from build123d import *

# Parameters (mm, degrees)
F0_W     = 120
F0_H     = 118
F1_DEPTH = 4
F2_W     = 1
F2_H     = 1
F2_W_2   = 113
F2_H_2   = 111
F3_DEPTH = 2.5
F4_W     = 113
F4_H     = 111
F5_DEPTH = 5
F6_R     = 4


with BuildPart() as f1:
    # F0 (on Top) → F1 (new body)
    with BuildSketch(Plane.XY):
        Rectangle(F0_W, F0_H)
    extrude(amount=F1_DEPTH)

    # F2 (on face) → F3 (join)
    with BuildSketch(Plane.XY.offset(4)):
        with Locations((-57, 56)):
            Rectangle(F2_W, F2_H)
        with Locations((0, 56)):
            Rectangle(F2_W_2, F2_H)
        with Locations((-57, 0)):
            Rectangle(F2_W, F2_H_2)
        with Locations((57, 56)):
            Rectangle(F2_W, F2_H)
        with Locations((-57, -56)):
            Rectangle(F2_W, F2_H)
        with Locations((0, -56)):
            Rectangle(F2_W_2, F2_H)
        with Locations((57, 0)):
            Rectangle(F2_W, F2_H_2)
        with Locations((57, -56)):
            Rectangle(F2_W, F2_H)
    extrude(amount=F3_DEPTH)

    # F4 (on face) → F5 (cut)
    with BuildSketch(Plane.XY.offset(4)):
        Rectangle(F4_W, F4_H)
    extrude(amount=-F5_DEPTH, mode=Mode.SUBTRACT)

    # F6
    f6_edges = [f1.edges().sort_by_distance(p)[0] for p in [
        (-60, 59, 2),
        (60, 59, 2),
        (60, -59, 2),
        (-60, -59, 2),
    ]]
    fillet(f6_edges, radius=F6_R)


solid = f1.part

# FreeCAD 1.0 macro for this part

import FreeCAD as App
import Part
import Sketcher
from FreeCAD import Vector
Q = App.Units.Quantity


def edges_at(feature, points):
    """Names of the edges that pass closest to the given points."""
    edges = feature.Shape.Edges
    near = lambda p: min(range(len(edges)), key=lambda i: edges[i].distToShape(Part.Vertex(*p))[0])
    return sorted({f"Edge{near(p) + 1}" for p in points})


def add_polygon(sketch, points):
    """Adds a closed chain of lines whose ends are joined by coincident constraints."""
    first, n = sketch.GeometryCount, len(points)
    for a, b in zip(points, points[1:] + points[:1]):
        sketch.addGeometry(Part.LineSegment(App.Vector(*a, 0), App.Vector(*b, 0)), False)
    for i in range(n):
        sketch.addConstraint(Sketcher.Constraint("Coincident", first + i, 2, first + (i + 1) % n, 1))

doc = App.newDocument("Part")
body = doc.addObject("PartDesign::Body", "Body")

# Sketch on XY plane
sketch1 = body.newObject("Sketcher::SketchObject", "Sketch")
sketch1.AttachmentSupport = (doc.getObject("XY_Plane"), [""])
sketch1.MapMode = "FlatFace"
add_polygon(sketch1, [(-60, 59), (-60, -59), (60, -59), (60, 59)])  # lines 0-3
sketch1.addConstraint(Sketcher.Constraint("Vertical", 0))
sketch1.addConstraint(Sketcher.Constraint("Horizontal", 1))
sketch1.addConstraint(Sketcher.Constraint("Vertical", 2))
sketch1.addConstraint(Sketcher.Constraint("Horizontal", 3))
sketch1.addConstraint(Sketcher.Constraint("Symmetric", 0, 2, 2, 2, -1, 1))
sketch1.addConstraint(Sketcher.Constraint("DistanceX", 1, 1, 1, 2, Q("120 mm")))
sketch1.addConstraint(Sketcher.Constraint("DistanceY", 0, 2, 0, 1, Q("118 mm")))
pad1 = body.newObject("PartDesign::Pad", "Pad")
pad1.Profile = sketch1
pad1.Length = 4

# Sketch on XY plane
sketch2 = body.newObject("Sketcher::SketchObject", "Sketch001")
sketch2.AttachmentSupport = (doc.getObject("XY_Plane"), [""])
sketch2.MapMode = "FlatFace"
sketch2.AttachmentOffset = App.Placement(Vector(0, 0, 4), App.Rotation())
add_polygon(sketch2, [(-58, -56), (58, -56), (58, 56), (-58, 56)])  # lines 0-3
add_polygon(sketch2, [(56, -56), (-56, -56), (-56, 56), (56, 56)])  # lines 4-7
sketch2.addConstraint(Sketcher.Constraint("Horizontal", 0))
sketch2.addConstraint(Sketcher.Constraint("Vertical", 1))
sketch2.addConstraint(Sketcher.Constraint("Horizontal", 2))
sketch2.addConstraint(Sketcher.Constraint("Vertical", 3))
sketch2.addConstraint(Sketcher.Constraint("Horizontal", 4))
sketch2.addConstraint(Sketcher.Constraint("Vertical", 5))
sketch2.addConstraint(Sketcher.Constraint("Horizontal", 6))
sketch2.addConstraint(Sketcher.Constraint("Vertical", 7))
sketch2.addConstraint(Sketcher.Constraint("Symmetric", 0, 2, 2, 2, -1, 1))
sketch2.addConstraint(Sketcher.Constraint("Symmetric", 4, 2, 6, 2, -1, 1))
sketch2.addConstraint(Sketcher.Constraint("Equal", 6, 1))
sketch2.addConstraint(Sketcher.Constraint("DistanceX", 0, 1, 0, 2, Q("115 mm")))
sketch2.addConstraint(Sketcher.Constraint("DistanceX", 4, 2, 4, 1, Q("113 mm")))
sketch2.addConstraint(Sketcher.Constraint("DistanceY", 5, 1, 5, 2, Q("111 mm")))
pad2 = body.newObject("PartDesign::Pad", "Pad001")
pad2.Profile = sketch2
pad2.Length = 2.5

# Sketch on XY plane
sketch3 = body.newObject("Sketcher::SketchObject", "Sketch002")
sketch3.AttachmentSupport = (doc.getObject("XY_Plane"), [""])
sketch3.MapMode = "FlatFace"
sketch3.AttachmentOffset = App.Placement(Vector(0, 0, 4), App.Rotation())
add_polygon(sketch3, [(-56, 56), (-56, -56), (56, -56), (56, 56)])  # lines 0-3
sketch3.addConstraint(Sketcher.Constraint("Vertical", 0))
sketch3.addConstraint(Sketcher.Constraint("Horizontal", 1))
sketch3.addConstraint(Sketcher.Constraint("Vertical", 2))
sketch3.addConstraint(Sketcher.Constraint("Horizontal", 3))
sketch3.addConstraint(Sketcher.Constraint("Symmetric", 0, 2, 2, 2, -1, 1))
sketch3.addConstraint(Sketcher.Constraint("DistanceX", 1, 1, 1, 2, Q("113 mm")))
sketch3.addConstraint(Sketcher.Constraint("DistanceY", 0, 2, 0, 1, Q("111 mm")))
pocket1 = body.newObject("PartDesign::Pocket", "Pocket")
pocket1.Profile = sketch3
pocket1.Length = 5
doc.recompute()

fillet = body.newObject("PartDesign::Fillet", "Fillet")
fillet.Base = (pocket1, edges_at(pocket1, [
    (-60, 59, 2),
    (60, 59, 2),
    (60, -59, 2),
    (-60, -59, 2),
]))
fillet.Radius = 4

doc.recompute()
